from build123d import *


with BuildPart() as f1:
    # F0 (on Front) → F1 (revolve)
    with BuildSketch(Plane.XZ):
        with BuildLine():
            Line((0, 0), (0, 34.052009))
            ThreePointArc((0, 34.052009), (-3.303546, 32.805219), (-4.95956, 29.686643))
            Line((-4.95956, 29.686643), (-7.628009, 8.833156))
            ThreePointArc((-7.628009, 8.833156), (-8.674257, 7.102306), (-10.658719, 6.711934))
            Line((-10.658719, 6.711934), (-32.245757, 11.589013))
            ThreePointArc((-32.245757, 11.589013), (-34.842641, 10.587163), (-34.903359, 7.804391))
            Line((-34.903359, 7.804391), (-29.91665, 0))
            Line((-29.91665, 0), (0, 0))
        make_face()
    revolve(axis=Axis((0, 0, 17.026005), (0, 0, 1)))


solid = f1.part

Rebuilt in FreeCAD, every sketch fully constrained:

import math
import FreeCAD as App
import Part
import Sketcher

V = App.Vector
Q = App.Units.Quantity

doc = App.newDocument("Part")
body = doc.addObject("PartDesign::Body", "Body")

sketch1 = doc.addObject("Sketcher::SketchObject", "Sketch")
body.addObject(sketch1)
sketch1.AttachmentSupport = (doc.XZ_Plane, [""])
sketch1.MapMode = "FlatFace"
sketch1.addGeometry(Part.LineSegment(V(0, 0, 0), V(0, 34.1, 0)), False)
sketch1.addGeometry(Part.ArcOfCircle(Part.Circle(V(0, 29.1, 0), V(0, 0, 1), 5), math.radians(90), math.radians(173)), False)
sketch1.addGeometry(Part.LineSegment(V(-5, 29.7, 0), V(-7.6, 8.8, 0)), False)
sketch1.addGeometry(Part.ArcOfCircle(Part.Circle(V(-10.1, 9.2, 0), V(0, 0, 1), 2.5), math.radians(-103), math.radians(-7)), False)
sketch1.addGeometry(Part.LineSegment(V(-10.7, 6.7, 0), V(-32.2, 11.6, 0)), False)
sketch1.addGeometry(Part.ArcOfCircle(Part.Circle(V(-32.8, 9.2, 0), V(0, 0, 1), 2.5), math.radians(77), math.radians(213)), False)
sketch1.addGeometry(Part.LineSegment(V(-34.9, 7.8, 0), V(-29.9, 0, 0)), False)
sketch1.addGeometry(Part.LineSegment(V(-29.9, 0, 0), V(0, 0, 0)), False)
sketch1.addConstraint(Sketcher.Constraint("Coincident", 0, 2, 1, 1))
sketch1.addConstraint(Sketcher.Constraint("Tangent", 1, 2, 2, 1))
sketch1.addConstraint(Sketcher.Constraint("Tangent", 2, 2, 3, 2))
sketch1.addConstraint(Sketcher.Constraint("Tangent", 3, 1, 4, 1))
sketch1.addConstraint(Sketcher.Constraint("Tangent", 4, 2, 5, 1))
sketch1.addConstraint(Sketcher.Constraint("Tangent", 5, 2, 6, 1))
sketch1.addConstraint(Sketcher.Constraint("Coincident", 6, 2, 7, 1))
sketch1.addConstraint(Sketcher.Constraint("Coincident", 7, 2, 0, 1))
sketch1.addConstraint(Sketcher.Constraint("Vertical", 0))
sketch1.addConstraint(Sketcher.Constraint("Horizontal", 7))
sketch1.addConstraint(Sketcher.Constraint("Coincident", 7, 2, -1, 1))
sketch1.addConstraint(Sketcher.Constraint("PointOnObject", 1, 3, -2))
sketch1.addConstraint(Sketcher.Constraint("Radius", 1, Q("4.999999 mm")))
sketch1.addConstraint(Sketcher.Constraint("Radius", 5, Q("2.5 mm")))
sketch1.addConstraint(Sketcher.Constraint("Radius", 3, Q("2.499998 mm")))
sketch1.addConstraint(Sketcher.Constraint("DistanceX", 7, 1, 7, 2, Q("29.91665 mm")))
sketch1.addConstraint(Sketcher.Constraint("DistanceY", 0, 1, 0, 2, Q("34.052009 mm")))
sketch1.addConstraint(Sketcher.Constraint("DistanceX", 5, 3, 3, 3, Q("22.688901 mm")))
sketch1.addConstraint(Sketcher.Constraint("DistanceX", 5, 2, 4, 2, Q("2.657602 mm")))
sketch1.addConstraint(Sketcher.Constraint("Distance", 6, Q("9.261522 mm")))
sketch1.addConstraint(Sketcher.Constraint("DistanceY", -1, 1, 3, 3, Q("9.150471 mm")))
revolution = doc.addObject("PartDesign::Revolution", "Revolution")
body.addObject(revolution)
revolution.Profile = sketch1
revolution.ReferenceAxis = (sketch1, ["V_Axis"])
revolution.Angle = 360

doc.recompute()
